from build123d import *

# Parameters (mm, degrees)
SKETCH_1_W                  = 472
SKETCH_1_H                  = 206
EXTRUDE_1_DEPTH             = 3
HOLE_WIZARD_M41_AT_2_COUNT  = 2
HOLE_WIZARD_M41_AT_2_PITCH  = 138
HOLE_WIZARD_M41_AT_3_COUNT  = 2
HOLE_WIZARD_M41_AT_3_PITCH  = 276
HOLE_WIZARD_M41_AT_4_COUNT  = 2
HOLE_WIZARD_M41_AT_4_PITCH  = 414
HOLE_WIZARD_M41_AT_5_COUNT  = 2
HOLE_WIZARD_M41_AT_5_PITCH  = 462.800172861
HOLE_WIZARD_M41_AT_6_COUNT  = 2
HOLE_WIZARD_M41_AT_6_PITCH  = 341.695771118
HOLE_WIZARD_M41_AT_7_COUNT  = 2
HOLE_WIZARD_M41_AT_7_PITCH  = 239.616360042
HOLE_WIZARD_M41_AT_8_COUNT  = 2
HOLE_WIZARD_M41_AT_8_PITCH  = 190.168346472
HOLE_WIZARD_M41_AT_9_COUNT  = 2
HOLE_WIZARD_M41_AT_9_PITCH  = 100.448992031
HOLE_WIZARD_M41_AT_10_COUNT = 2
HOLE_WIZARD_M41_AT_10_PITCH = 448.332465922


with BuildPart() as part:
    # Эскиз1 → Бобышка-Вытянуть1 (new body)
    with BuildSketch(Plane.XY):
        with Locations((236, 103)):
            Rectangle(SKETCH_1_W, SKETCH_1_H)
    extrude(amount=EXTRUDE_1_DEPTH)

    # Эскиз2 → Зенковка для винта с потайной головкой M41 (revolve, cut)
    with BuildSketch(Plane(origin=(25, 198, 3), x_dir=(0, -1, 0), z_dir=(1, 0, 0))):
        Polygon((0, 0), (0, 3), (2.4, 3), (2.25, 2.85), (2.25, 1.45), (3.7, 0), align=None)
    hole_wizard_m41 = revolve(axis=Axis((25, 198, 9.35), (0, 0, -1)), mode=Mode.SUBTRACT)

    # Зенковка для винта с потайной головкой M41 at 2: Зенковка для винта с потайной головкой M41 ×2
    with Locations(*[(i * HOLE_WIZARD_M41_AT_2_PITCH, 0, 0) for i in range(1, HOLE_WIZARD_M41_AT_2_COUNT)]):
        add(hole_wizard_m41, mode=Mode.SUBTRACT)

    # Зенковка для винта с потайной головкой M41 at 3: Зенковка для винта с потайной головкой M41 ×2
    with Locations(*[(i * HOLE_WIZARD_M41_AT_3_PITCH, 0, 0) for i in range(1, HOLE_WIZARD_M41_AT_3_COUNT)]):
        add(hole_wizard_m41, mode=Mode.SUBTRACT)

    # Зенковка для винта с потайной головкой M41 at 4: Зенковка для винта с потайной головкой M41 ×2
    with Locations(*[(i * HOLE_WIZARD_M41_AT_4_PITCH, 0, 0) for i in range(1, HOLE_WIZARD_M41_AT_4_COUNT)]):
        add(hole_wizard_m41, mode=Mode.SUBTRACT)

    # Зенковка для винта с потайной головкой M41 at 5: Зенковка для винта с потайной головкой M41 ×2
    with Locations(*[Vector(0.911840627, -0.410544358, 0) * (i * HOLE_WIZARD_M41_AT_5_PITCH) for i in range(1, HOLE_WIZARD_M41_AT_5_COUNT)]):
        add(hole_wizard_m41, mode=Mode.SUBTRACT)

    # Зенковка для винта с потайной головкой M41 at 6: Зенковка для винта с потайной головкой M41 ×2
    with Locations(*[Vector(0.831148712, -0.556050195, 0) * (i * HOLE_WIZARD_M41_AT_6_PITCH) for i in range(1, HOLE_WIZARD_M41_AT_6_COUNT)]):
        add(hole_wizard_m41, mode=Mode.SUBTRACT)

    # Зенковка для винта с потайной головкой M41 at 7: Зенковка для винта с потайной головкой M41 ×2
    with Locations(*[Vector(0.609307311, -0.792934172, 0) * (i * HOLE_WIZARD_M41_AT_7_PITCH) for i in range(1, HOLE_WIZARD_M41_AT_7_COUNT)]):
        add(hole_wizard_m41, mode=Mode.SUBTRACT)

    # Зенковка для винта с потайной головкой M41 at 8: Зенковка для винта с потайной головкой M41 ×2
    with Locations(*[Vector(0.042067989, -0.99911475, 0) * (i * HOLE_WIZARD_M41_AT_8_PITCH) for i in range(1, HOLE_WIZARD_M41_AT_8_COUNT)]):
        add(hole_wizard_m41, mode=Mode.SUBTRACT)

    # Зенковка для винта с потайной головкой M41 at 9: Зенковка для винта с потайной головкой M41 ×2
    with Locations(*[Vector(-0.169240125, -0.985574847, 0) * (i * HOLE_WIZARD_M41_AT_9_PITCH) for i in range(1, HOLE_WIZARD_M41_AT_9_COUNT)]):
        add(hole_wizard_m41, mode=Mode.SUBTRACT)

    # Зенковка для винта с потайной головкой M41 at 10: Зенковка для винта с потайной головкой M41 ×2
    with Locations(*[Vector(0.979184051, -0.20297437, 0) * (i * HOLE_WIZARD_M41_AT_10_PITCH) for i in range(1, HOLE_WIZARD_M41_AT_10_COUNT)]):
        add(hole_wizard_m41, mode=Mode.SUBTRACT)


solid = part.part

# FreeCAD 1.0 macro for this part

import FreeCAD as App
import Part
import Sketcher

V = App.Vector
Q = App.Units.Quantity

doc = App.newDocument("Part")
body = doc.addObject("PartDesign::Body", "Body")

# Sketch on XY plane
sketch1 = body.newObject("Sketcher::SketchObject", "Sketch")
sketch1.AttachmentSupport = (doc.getObject("XY_Plane"), [""])
sketch1.MapMode = "FlatFace"
sketch1.addGeometry(Part.LineSegment(V(0, 206, 0), V(0, 0, 0)), False)
sketch1.addGeometry(Part.LineSegment(V(0, 0, 0), V(472, 0, 0)), False)
sketch1.addGeometry(Part.LineSegment(V(472, 0, 0), V(472, 206, 0)), False)
sketch1.addGeometry(Part.LineSegment(V(472, 206, 0), V(0, 206, 0)), False)
sketch1.addConstraint(Sketcher.Constraint("Coincident", 0, 2, 1, 1))
sketch1.addConstraint(Sketcher.Constraint("Coincident", 1, 2, 2, 1))
sketch1.addConstraint(Sketcher.Constraint("Coincident", 2, 2, 3, 1))
sketch1.addConstraint(Sketcher.Constraint("Coincident", 3, 2, 0, 1))
sketch1.addConstraint(Sketcher.Constraint("Vertical", 0))
sketch1.addConstraint(Sketcher.Constraint("Horizontal", 1))
sketch1.addConstraint(Sketcher.Constraint("Vertical", 2))
sketch1.addConstraint(Sketcher.Constraint("Horizontal", 3))
sketch1.addConstraint(Sketcher.Constraint("Coincident", 0, 2, -1, 1))
sketch1.addConstraint(Sketcher.Constraint("DistanceX", 1, 1, 1, 2, 472.0))
sketch1.addConstraint(Sketcher.Constraint("DistanceY", 0, 2, 0, 1, 206.0))
pad1 = body.newObject("PartDesign::Pad", "Pad")
pad1.Profile = sketch1
pad1.Length = 3

# Sketch on YZ plane
sketch2 = body.newObject("Sketcher::SketchObject", "Sketch001")
sketch2.AttachmentSupport = (doc.getObject("YZ_Plane"), [""])
sketch2.MapMode = "FlatFace"
sketch2.AttachmentOffset = App.Placement(V(0, 0, 25), App.Rotation())
sketch2.addGeometry(Part.LineSegment(V(198, 0, 0), V(198, 3, 0)), False)
sketch2.addGeometry(Part.LineSegment(V(198, 3, 0), V(194.3, 3, 0)), False)
sketch2.addGeometry(Part.LineSegment(V(194.3, 3, 0), V(195.75, 1.55, 0)), False)
sketch2.addGeometry(Part.LineSegment(V(195.75, 1.55, 0), V(195.75, 0.15, 0)), False)
sketch2.addGeometry(Part.LineSegment(V(195.75, 0.15, 0), V(195.6, 0, 0)), False)
sketch2.addGeometry(Part.LineSegment(V(195.6, 0, 0), V(198, 0, 0)), False)
sketch2.addGeometry(Part.LineSegment(V(198, 3, 0), V(198, 0, 0)), True)  # axis
sketch2.addConstraint(Sketcher.Constraint("Coincident", 0, 2, 1, 1))
sketch2.addConstraint(Sketcher.Constraint("Coincident", 1, 2, 2, 1))
sketch2.addConstraint(Sketcher.Constraint("Coincident", 2, 2, 3, 1))
sketch2.addConstraint(Sketcher.Constraint("Coincident", 3, 2, 4, 1))
sketch2.addConstraint(Sketcher.Constraint("Coincident", 4, 2, 5, 1))
sketch2.addConstraint(Sketcher.Constraint("Coincident", 5, 2, 0, 1))
sketch2.addConstraint(Sketcher.Constraint("Vertical", 0))
sketch2.addConstraint(Sketcher.Constraint("Horizontal", 1))
sketch2.addConstraint(Sketcher.Constraint("Vertical", 3))
sketch2.addConstraint(Sketcher.Constraint("Horizontal", 5))
sketch2.addConstraint(Sketcher.Constraint("Vertical", 6))
sketch2.addConstraint(Sketcher.Constraint("Coincident", 6, 1, 0, 2))
sketch2.addConstraint(Sketcher.Constraint("PointOnObject", 4, 2, -1))
sketch2.addConstraint(Sketcher.Constraint("PointOnObject", 6, 2, -1))
sketch2.addConstraint(Sketcher.Constraint("Perpendicular", 2, 4))
sketch2.addConstraint(Sketcher.Constraint("DistanceY", 0, 1, 0, 2, 3.0))
sketch2.addConstraint(Sketcher.Constraint("Angle", 2, Q("-45 deg")))
sketch2.addConstraint(Sketcher.Constraint("DistanceX", 1, 2, 1, 1, 3.7))
sketch2.addConstraint(Sketcher.Constraint("DistanceX", 5, 1, 5, 2, 2.4))
sketch2.addConstraint(Sketcher.Constraint("DistanceY", 3, 2, 3, 1, 1.4))
sketch2.addConstraint(Sketcher.Constraint("DistanceX", -1, 1, 0, 2, 198.0))
groove = body.newObject("PartDesign::Groove", "Groove")
groove.Profile = sketch2
groove.ReferenceAxis = (sketch2, ["Axis0"])
groove.Angle = 360
doc.recompute()

linearpattern = body.newObject("PartDesign::LinearPattern", "LinearPattern")
linearpattern.Originals = [groove]
linearpattern.Direction = (doc.getObject("X_Axis"), [""])
linearpattern.Mode = "offset"
linearpattern.Offset = 138
linearpattern.Occurrences = 2
body.Tip = linearpattern
doc.recompute()

linearpattern2 = body.newObject("PartDesign::LinearPattern", "LinearPattern001")
linearpattern2.Originals = [groove]
linearpattern2.Direction = (doc.getObject("X_Axis"), [""])
linearpattern2.Mode = "offset"
linearpattern2.Offset = 276
linearpattern2.Occurrences = 2
body.Tip = linearpattern2
doc.recompute()

linearpattern3 = body.newObject("PartDesign::LinearPattern", "LinearPattern002")
linearpattern3.Originals = [groove]
linearpattern3.Direction = (doc.getObject("X_Axis"), [""])
linearpattern3.Mode = "offset"
linearpattern3.Offset = 414
linearpattern3.Occurrences = 2
body.Tip = linearpattern3
doc.recompute()

datumline = body.newObject("PartDesign::Line", "DatumLine")
datumline.Placement = App.Placement(V(0, 0, 0), App.Rotation(V(0, 0, 1), V(0.911840627, -0.410544358, 0)))
linearpattern4 = body.newObject("PartDesign::LinearPattern", "LinearPattern003")
linearpattern4.Originals = [groove]
linearpattern4.Direction = (datumline, [""])
linearpattern4.Mode = "offset"
linearpattern4.Offset = 462.800173
linearpattern4.Occurrences = 2
body.Tip = linearpattern4
doc.recompute()

datumline2 = body.newObject("PartDesign::Line", "DatumLine001")
datumline2.Placement = App.Placement(V(0, 0, 0), App.Rotation(V(0, 0, 1), V(0.831148712, -0.556050195, 0)))
linearpattern5 = body.newObject("PartDesign::LinearPattern", "LinearPattern004")
linearpattern5.Originals = [groove]
linearpattern5.Direction = (datumline2, [""])
linearpattern5.Mode = "offset"
linearpattern5.Offset = 341.695771
linearpattern5.Occurrences = 2
body.Tip = linearpattern5
doc.recompute()

datumline3 = body.newObject("PartDesign::Line", "DatumLine002")
datumline3.Placement = App.Placement(V(0, 0, 0), App.Rotation(V(0, 0, 1), V(0.609307311, -0.792934172, 0)))
linearpattern6 = body.newObject("PartDesign::LinearPattern", "LinearPattern005")
linearpattern6.Originals = [groove]
linearpattern6.Direction = (datumline3, [""])
linearpattern6.Mode = "offset"
linearpattern6.Offset = 239.61636
linearpattern6.Occurrences = 2
body.Tip = linearpattern6
doc.recompute()

datumline4 = body.newObject("PartDesign::Line", "DatumLine003")
datumline4.Placement = App.Placement(V(0, 0, 0), App.Rotation(V(0, 0, 1), V(0.042067989, -0.99911475, 0)))
linearpattern7 = body.newObject("PartDesign::LinearPattern", "LinearPattern006")
linearpattern7.Originals = [groove]
linearpattern7.Direction = (datumline4, [""])
linearpattern7.Mode = "offset"
linearpattern7.Offset = 190.168346
linearpattern7.Occurrences = 2
body.Tip = linearpattern7
doc.recompute()

datumline5 = body.newObject("PartDesign::Line", "DatumLine004")
datumline5.Placement = App.Placement(V(0, 0, 0), App.Rotation(V(0, 0, 1), V(-0.169240125, -0.985574848, 0)))
linearpattern8 = body.newObject("PartDesign::LinearPattern", "LinearPattern007")
linearpattern8.Originals = [groove]
linearpattern8.Direction = (datumline5, [""])
linearpattern8.Mode = "offset"
linearpattern8.Offset = 100.448992
linearpattern8.Occurrences = 2
body.Tip = linearpattern8
doc.recompute()

datumline6 = body.newObject("PartDesign::Line", "DatumLine005")
datumline6.Placement = App.Placement(V(0, 0, 0), App.Rotation(V(0, 0, 1), V(0.979184051, -0.20297437, 0)))
linearpattern9 = body.newObject("PartDesign::LinearPattern", "LinearPattern008")
linearpattern9.Originals = [groove]
linearpattern9.Direction = (datumline6, [""])
linearpattern9.Mode = "offset"
linearpattern9.Offset = 448.332466
linearpattern9.Occurrences = 2
body.Tip = linearpattern9

doc.recompute()
